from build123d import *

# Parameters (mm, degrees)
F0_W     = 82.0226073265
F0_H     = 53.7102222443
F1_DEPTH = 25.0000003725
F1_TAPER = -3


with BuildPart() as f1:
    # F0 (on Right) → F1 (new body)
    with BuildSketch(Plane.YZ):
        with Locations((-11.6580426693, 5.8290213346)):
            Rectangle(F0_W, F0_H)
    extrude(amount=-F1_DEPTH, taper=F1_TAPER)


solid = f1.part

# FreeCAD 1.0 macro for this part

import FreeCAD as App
import Part
import Sketcher
from FreeCAD import Vector


def add_polygon(sketch, points):
    """Adds a closed chain of lines whose ends are joined by coincident constraints."""
    first, n = sketch.GeometryCount, len(points)
    for a, b in zip(points, points[1:] + points[:1]):
        sketch.addGeometry(Part.LineSegment(App.Vector(*a, 0), App.Vector(*b, 0)), False)
    for i in range(n):
        sketch.addConstraint(Sketcher.Constraint("Coincident", first + i, 2, first + (i + 1) % n, 1))

doc = App.newDocument("Part")
body = doc.addObject("PartDesign::Body", "Body")

# Sketch on YZ plane
sketch1 = body.newObject("Sketcher::SketchObject", "Sketch")
sketch1.AttachmentSupport = (doc.getObject("YZ_Plane"), [""])
sketch1.MapMode = "FlatFace"
add_polygon(sketch1, [(-52.669346, 32.684132), (-52.669346, -21.02609), (29.353261, -21.02609), (29.353261, 32.684132)])  # lines 0-3
sketch1.addConstraint([
    Sketcher.Constraint("Vertical", 0),
    Sketcher.Constraint("Horizontal", 1),
    Sketcher.Constraint("Vertical", 2),
    Sketcher.Constraint("Horizontal", 3),
    Sketcher.Constraint("DistanceX", 1, 1, 1, 2, 82.022607),
    Sketcher.Constraint("DistanceY", 0, 2, 0, 1, 53.710222),
    Sketcher.Constraint("DistanceY", 0, 2, -1, 1, 21.02609),
    Sketcher.Constraint("DistanceX", -1, 1, 1, 2, 29.353261),
])
pad1 = body.newObject("PartDesign::Pad", "Pad")
pad1.Profile = sketch1
pad1.Length = 25
pad1.Reversed = True
pad1.TaperAngle = 3

doc.recompute()
